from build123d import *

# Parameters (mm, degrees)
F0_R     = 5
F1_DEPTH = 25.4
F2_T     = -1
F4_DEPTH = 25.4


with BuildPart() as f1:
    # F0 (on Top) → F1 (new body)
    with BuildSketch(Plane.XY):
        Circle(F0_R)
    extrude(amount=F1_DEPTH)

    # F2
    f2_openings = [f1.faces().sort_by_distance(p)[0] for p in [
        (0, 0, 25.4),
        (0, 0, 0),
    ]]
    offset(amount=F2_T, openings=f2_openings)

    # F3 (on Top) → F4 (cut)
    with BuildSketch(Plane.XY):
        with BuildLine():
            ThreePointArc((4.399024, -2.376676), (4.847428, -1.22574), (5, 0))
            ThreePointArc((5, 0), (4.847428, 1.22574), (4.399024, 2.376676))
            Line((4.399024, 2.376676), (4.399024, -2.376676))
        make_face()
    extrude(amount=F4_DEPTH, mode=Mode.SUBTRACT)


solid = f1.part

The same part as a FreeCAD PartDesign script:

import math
import FreeCAD as App
import Part
import Sketcher

V = App.Vector
Q = App.Units.Quantity


def faces_at(feature, points):
    """Names of the faces that lie closest to the given points."""
    faces = feature.Shape.Faces
    near = lambda p: min(range(len(faces)), key=lambda i: faces[i].distToShape(Part.Vertex(*p))[0])
    return sorted({f"Face{near(p) + 1}" for p in points})

doc = App.newDocument("Part")
body = doc.addObject("PartDesign::Body", "Body")

sketch1 = body.newObject("Sketcher::SketchObject", "Sketch")
sketch1.AttachmentSupport = (doc.getObject("XY_Plane"), [""])
sketch1.MapMode = "FlatFace"
sketch1.addGeometry(Part.Circle(V(0, 0, 0), V(0, 0, 1), 5), False)
sketch1.addConstraint(Sketcher.Constraint("Coincident", 0, 3, -1, 1))
sketch1.addConstraint(Sketcher.Constraint("Diameter", 0, Q("10 mm")))
pad1 = body.newObject("PartDesign::Pad", "Pad")
pad1.Profile = sketch1
pad1.Length = 25.4
doc.recompute()

thickness = body.newObject("PartDesign::Thickness", "Thickness")
thickness.Base = (pad1, faces_at(pad1, [(0, 0, 25.4), (0, 0, 0)]))
thickness.Value = 1
thickness.Reversed = True
thickness.Join = "Arc"

sketch2 = body.newObject("Sketcher::SketchObject", "Sketch001")
sketch2.AttachmentSupport = (doc.getObject("XY_Plane"), [""])
sketch2.MapMode = "FlatFace"
sketch2.addGeometry(Part.ArcOfCircle(Part.Circle(V(0, 0, 0), V(0, 0, 1), 5), math.radians(-28), math.radians(0)), False)
sketch2.addGeometry(Part.ArcOfCircle(Part.Circle(V(0, 0, 0), V(0, 0, 1), 5), math.radians(0), math.radians(28)), False)
sketch2.addGeometry(Part.LineSegment(V(4.4, 2.4, 0), V(4.4, -2.4, 0)), False)
sketch2.addConstraint(Sketcher.Constraint("Tangent", 0, 2, 1, 1))
sketch2.addConstraint(Sketcher.Constraint("Coincident", 1, 2, 2, 1))
sketch2.addConstraint(Sketcher.Constraint("Coincident", 2, 2, 0, 1))
sketch2.addConstraint(Sketcher.Constraint("Vertical", 2))
sketch2.addConstraint(Sketcher.Constraint("Equal", 0, 1))
sketch2.addConstraint(Sketcher.Constraint("PointOnObject", 0, 2, -1))
sketch2.addConstraint(Sketcher.Constraint("DistanceX", -1, 1, 0, 2, Q("5 mm")))
sketch2.addConstraint(Sketcher.Constraint("Radius", 0, Q("5.000012 mm")))
sketch2.addConstraint(Sketcher.Constraint("DistanceY", 2, 2, 2, 1, Q("4.753352 mm")))
sketch2.addConstraint(Sketcher.Constraint("DistanceY", -1, 1, 1, 2, Q("2.376676 mm")))
pocket1 = body.newObject("PartDesign::Pocket", "Pocket")
pocket1.Profile = sketch2
pocket1.Length = 25.4
pocket1.Reversed = True

doc.recompute()
